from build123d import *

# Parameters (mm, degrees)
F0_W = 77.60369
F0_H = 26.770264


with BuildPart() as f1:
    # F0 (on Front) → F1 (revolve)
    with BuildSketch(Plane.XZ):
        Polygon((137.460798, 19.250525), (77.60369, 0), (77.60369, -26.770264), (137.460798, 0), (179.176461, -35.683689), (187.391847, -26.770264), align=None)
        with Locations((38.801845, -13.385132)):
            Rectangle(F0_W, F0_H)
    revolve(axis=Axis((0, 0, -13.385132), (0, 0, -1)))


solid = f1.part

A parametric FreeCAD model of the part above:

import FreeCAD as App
import Part
import Sketcher

V = App.Vector
Q = App.Units.Quantity

doc = App.newDocument("Part")
body = doc.addObject("PartDesign::Body", "Body")

# Sketch on XZ plane
sketch1 = body.newObject("Sketcher::SketchObject", "Sketch")
sketch1.AttachmentSupport = (doc.getObject("XZ_Plane"), [""])
sketch1.MapMode = "FlatFace"
sketch1.addGeometry([
    Part.LineSegment(V(137, 19, 0), V(78, 0, 0)),  # 0
    Part.LineSegment(V(78, 0, 0), V(0, 0, 0)),  # 1
    Part.LineSegment(V(0, 0, 0), V(0, -27, 0)),  # 2
    Part.LineSegment(V(0, -27, 0), V(78, -27, 0)),  # 3
    Part.LineSegment(V(78, -27, 0), V(137, 0, 0)),  # 4
    Part.LineSegment(V(137, 0, 0), V(179, -36, 0)),  # 5
    Part.LineSegment(V(179, -36, 0), V(187, -27, 0)),  # 6
    Part.LineSegment(V(187, -27, 0), V(137, 19, 0)),  # 7
], False)
sketch1.addConstraint([
    Sketcher.Constraint("Coincident", 0, 2, 1, 1),
    Sketcher.Constraint("Coincident", 1, 2, 2, 1),
    Sketcher.Constraint("Coincident", 2, 2, 3, 1),
    Sketcher.Constraint("Coincident", 3, 2, 4, 1),
    Sketcher.Constraint("Coincident", 4, 2, 5, 1),
    Sketcher.Constraint("Coincident", 5, 2, 6, 1),
    Sketcher.Constraint("Coincident", 6, 2, 7, 1),
    Sketcher.Constraint("Coincident", 7, 2, 0, 1),
    Sketcher.Constraint("Horizontal", 1),
    Sketcher.Constraint("Vertical", 2),
    Sketcher.Constraint("Horizontal", 3),
    Sketcher.Constraint("Coincident", 1, 2, -1, 1),
    Sketcher.Constraint("PointOnObject", 4, 2, -1),
    Sketcher.Constraint("Perpendicular", 6, 7),
    Sketcher.Constraint("Horizontal", 3, 2, 6, 2),
    Sketcher.Constraint("Vertical", 0, 2, 3, 2),
    Sketcher.Constraint("Vertical", 4, 2, 7, 2),
    Sketcher.Constraint("DistanceX", 1, 2, 1, 1, Q("77.60369 mm")),
    Sketcher.Constraint("DistanceX", -1, 1, 4, 2, Q("137.460798 mm")),
    Sketcher.Constraint("Distance", 4, Q("65.570728 mm")),
    Sketcher.Constraint("Distance", 6, Q("12.121952 mm")),
    Sketcher.Constraint("Distance", 7, Q("67.904511 mm")),
    Sketcher.Constraint("DistanceX", -1, 1, 5, 2, Q("179.176461 mm")),
])
revolution = body.newObject("PartDesign::Revolution", "Revolution")
revolution.Profile = sketch1
revolution.ReferenceAxis = (sketch1, ["V_Axis"])
revolution.Angle = 360

doc.recompute()
